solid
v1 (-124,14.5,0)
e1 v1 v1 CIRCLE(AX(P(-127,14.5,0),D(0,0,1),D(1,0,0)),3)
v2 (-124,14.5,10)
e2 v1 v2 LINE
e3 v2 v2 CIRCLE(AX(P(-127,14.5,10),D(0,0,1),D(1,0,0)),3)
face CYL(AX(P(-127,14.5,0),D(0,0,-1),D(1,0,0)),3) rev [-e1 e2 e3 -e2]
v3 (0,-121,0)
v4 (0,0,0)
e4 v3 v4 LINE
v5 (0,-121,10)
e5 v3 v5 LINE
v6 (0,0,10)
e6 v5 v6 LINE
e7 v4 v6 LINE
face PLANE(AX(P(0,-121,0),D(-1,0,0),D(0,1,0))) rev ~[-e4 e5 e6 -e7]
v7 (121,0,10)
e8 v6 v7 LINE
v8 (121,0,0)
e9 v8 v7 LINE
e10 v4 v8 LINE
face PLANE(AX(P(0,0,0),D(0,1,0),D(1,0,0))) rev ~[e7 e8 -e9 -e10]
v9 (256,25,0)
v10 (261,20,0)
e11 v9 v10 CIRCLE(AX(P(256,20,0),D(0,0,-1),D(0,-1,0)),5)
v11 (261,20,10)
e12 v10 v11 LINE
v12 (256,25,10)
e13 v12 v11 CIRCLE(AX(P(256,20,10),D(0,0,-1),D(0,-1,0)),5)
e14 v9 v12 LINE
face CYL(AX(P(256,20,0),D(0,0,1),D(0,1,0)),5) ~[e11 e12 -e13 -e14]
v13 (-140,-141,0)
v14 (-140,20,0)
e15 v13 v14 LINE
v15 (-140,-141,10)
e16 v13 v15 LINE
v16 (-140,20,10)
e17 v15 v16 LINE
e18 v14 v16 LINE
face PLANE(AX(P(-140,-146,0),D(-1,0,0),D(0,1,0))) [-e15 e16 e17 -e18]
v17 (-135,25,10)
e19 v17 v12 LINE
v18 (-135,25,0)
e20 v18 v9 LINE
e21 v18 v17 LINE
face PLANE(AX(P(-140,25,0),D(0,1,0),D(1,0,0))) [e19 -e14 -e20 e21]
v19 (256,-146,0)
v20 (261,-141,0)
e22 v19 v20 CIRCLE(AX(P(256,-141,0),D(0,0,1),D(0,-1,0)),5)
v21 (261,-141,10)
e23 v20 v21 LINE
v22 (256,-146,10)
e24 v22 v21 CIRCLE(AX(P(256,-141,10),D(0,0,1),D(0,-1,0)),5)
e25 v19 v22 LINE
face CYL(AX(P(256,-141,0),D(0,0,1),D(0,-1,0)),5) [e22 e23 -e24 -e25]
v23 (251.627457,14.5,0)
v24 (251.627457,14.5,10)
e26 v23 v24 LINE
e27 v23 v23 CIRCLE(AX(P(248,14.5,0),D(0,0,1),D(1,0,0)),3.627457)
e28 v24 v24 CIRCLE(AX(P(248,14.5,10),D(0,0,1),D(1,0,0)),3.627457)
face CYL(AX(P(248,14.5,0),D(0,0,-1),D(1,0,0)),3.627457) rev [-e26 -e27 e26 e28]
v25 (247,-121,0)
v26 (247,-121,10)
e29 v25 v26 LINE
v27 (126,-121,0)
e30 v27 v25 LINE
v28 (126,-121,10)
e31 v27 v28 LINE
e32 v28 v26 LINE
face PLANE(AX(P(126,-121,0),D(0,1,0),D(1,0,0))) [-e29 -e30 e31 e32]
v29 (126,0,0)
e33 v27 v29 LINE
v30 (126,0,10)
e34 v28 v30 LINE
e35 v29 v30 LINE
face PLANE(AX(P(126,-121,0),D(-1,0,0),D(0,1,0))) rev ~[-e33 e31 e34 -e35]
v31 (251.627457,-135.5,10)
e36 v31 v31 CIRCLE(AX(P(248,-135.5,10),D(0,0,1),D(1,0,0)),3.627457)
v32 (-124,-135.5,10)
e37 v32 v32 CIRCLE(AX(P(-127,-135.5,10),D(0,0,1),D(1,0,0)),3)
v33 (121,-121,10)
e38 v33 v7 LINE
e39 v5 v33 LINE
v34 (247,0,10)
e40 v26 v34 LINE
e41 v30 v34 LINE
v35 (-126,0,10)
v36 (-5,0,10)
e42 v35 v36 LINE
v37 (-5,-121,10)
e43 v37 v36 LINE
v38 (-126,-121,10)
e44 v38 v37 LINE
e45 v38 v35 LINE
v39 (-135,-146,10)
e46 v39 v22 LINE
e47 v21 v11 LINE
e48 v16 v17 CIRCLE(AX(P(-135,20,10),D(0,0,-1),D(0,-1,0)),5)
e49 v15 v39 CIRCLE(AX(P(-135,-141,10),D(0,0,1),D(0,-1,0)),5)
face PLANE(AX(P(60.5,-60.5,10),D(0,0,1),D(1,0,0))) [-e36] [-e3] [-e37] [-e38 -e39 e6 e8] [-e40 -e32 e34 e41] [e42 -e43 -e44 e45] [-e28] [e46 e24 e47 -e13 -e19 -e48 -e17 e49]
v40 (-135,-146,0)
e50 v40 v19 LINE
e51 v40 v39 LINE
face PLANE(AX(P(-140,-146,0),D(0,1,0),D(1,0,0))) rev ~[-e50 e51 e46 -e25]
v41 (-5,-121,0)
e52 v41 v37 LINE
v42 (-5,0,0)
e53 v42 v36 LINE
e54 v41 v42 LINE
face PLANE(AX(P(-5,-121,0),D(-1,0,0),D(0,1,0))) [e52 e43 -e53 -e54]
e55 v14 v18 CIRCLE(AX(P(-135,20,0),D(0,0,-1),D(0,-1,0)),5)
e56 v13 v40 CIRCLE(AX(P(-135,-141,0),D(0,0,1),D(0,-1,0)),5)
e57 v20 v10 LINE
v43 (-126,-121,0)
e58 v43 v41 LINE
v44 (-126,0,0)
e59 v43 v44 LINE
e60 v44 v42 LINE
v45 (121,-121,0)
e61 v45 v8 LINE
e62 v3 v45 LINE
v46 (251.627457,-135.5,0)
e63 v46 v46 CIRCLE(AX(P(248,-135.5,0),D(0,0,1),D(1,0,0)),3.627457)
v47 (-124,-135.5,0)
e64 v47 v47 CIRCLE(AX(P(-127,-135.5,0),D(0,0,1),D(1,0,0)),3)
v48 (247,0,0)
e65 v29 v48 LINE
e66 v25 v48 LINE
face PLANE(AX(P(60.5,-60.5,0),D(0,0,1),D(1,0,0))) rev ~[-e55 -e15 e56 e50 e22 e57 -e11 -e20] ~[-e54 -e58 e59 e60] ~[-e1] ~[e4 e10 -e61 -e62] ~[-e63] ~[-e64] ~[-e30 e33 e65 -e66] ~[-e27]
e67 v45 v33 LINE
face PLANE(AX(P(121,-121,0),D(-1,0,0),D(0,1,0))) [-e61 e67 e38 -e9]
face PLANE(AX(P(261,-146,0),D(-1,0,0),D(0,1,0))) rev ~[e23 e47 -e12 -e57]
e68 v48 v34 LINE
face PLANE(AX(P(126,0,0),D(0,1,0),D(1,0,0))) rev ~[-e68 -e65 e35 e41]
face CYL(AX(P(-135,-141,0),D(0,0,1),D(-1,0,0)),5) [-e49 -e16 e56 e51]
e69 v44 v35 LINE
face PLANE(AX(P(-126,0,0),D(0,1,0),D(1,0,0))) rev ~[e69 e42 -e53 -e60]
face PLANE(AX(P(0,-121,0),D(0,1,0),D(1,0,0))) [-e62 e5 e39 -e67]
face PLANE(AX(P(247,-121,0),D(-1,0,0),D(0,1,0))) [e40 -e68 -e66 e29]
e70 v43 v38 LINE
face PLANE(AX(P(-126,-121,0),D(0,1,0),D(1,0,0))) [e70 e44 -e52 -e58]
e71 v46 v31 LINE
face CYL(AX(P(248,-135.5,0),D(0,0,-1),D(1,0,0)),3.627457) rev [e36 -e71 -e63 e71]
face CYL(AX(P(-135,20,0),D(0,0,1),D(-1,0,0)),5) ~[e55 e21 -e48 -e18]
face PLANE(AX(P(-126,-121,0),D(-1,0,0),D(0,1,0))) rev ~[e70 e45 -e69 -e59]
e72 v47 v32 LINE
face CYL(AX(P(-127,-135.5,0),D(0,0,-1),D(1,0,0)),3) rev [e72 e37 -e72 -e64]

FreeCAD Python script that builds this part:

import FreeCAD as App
import Part
import Sketcher
Q = App.Units.Quantity


def edges_at(feature, points):
    """Names of the edges that pass closest to the given points."""
    edges = feature.Shape.Edges
    near = lambda p: min(range(len(edges)), key=lambda i: edges[i].distToShape(Part.Vertex(*p))[0])
    return sorted({f"Edge{near(p) + 1}" for p in points})

doc = App.newDocument("Part")
body = doc.addObject("PartDesign::Body", "Body")

sketch1 = doc.addObject("Sketcher::SketchObject", "Sketch")
body.addObject(sketch1)
sketch1.AttachmentSupport = (doc.XY_Plane, [""])
sketch1.MapMode = "FlatFace"
sketch1.addGeometry([
    Part.LineSegment(App.Vector(-140, 25, 0), App.Vector(-140, -146, 0)),
    Part.LineSegment(App.Vector(-140, -146, 0), App.Vector(261, -146, 0)),
    Part.LineSegment(App.Vector(261, -146, 0), App.Vector(261, 25, 0)),
    Part.LineSegment(App.Vector(261, 25, 0), App.Vector(-140, 25, 0)),
    Part.Circle(App.Vector(-127, -135.5, 0), App.Vector(0, 0, 1), 3),
    Part.Circle(App.Vector(248, -135.5, 0), App.Vector(0, 0, 1), 3.6),
    Part.LineSegment(App.Vector(-5, -121, 0), App.Vector(-126, -121, 0)),
    Part.LineSegment(App.Vector(-126, -121, 0), App.Vector(-126, 0, 0)),
    Part.LineSegment(App.Vector(-126, 0, 0), App.Vector(-5, 0, 0)),
    Part.LineSegment(App.Vector(-5, 0, 0), App.Vector(-5, -121, 0)),
    Part.LineSegment(App.Vector(121, -121, 0), App.Vector(0, -121, 0)),
    Part.LineSegment(App.Vector(0, -121, 0), App.Vector(0, 0, 0)),
    Part.LineSegment(App.Vector(0, 0, 0), App.Vector(121, 0, 0)),
    Part.LineSegment(App.Vector(121, 0, 0), App.Vector(121, -121, 0)),
    Part.Circle(App.Vector(-127, 14.5, 0), App.Vector(0, 0, 1), 3),
    Part.LineSegment(App.Vector(247, -121, 0), App.Vector(126, -121, 0)),
    Part.LineSegment(App.Vector(126, -121, 0), App.Vector(126, 0, 0)),
    Part.LineSegment(App.Vector(126, 0, 0), App.Vector(247, 0, 0)),
    Part.LineSegment(App.Vector(247, 0, 0), App.Vector(247, -121, 0)),
    Part.Circle(App.Vector(248, 14.5, 0), App.Vector(0, 0, 1), 3.6),
], False)
sketch1.addConstraint([
    Sketcher.Constraint("Coincident", 0, 2, 1, 1),
    Sketcher.Constraint("Coincident", 1, 2, 2, 1),
    Sketcher.Constraint("Coincident", 2, 2, 3, 1),
    Sketcher.Constraint("Coincident", 3, 2, 0, 1),
    Sketcher.Constraint("Coincident", 6, 2, 7, 1),
    Sketcher.Constraint("Coincident", 7, 2, 8, 1),
    Sketcher.Constraint("Coincident", 8, 2, 9, 1),
    Sketcher.Constraint("Coincident", 9, 2, 6, 1),
    Sketcher.Constraint("Coincident", 10, 2, 11, 1),
    Sketcher.Constraint("Coincident", 11, 2, 12, 1),
    Sketcher.Constraint("Coincident", 12, 2, 13, 1),
    Sketcher.Constraint("Coincident", 13, 2, 10, 1),
    Sketcher.Constraint("Coincident", 15, 2, 16, 1),
    Sketcher.Constraint("Coincident", 16, 2, 17, 1),
    Sketcher.Constraint("Coincident", 17, 2, 18, 1),
    Sketcher.Constraint("Coincident", 18, 2, 15, 1),
    Sketcher.Constraint("Vertical", 0),
    Sketcher.Constraint("Horizontal", 1),
    Sketcher.Constraint("Vertical", 2),
    Sketcher.Constraint("Horizontal", 3),
    Sketcher.Constraint("Horizontal", 6),
    Sketcher.Constraint("Vertical", 7),
    Sketcher.Constraint("Horizontal", 8),
    Sketcher.Constraint("Vertical", 9),
    Sketcher.Constraint("Horizontal", 10),
    Sketcher.Constraint("Vertical", 11),
    Sketcher.Constraint("Horizontal", 12),
    Sketcher.Constraint("Vertical", 13),
    Sketcher.Constraint("Horizontal", 15),
    Sketcher.Constraint("Vertical", 16),
    Sketcher.Constraint("Horizontal", 17),
    Sketcher.Constraint("Vertical", 18),
    Sketcher.Constraint("Coincident", 11, 2, -1, 1),
    Sketcher.Constraint("Equal", 4, 14),
    Sketcher.Constraint("Equal", 5, 19),
    Sketcher.Constraint("Symmetric", 7, 2, 16, 2, -1, 1),
    Sketcher.Constraint("PointOnObject", 7, 2, -1),
    Sketcher.Constraint("Horizontal", 4, 3, 5, 3),
    Sketcher.Constraint("Horizontal", 14, 3, 19, 3),
    Sketcher.Constraint("Horizontal", 9, 2, 10, 2),
    Sketcher.Constraint("Horizontal", 13, 2, 15, 2),
    Sketcher.Constraint("Vertical", 4, 3, 14, 3),
    Sketcher.Constraint("Vertical", 5, 3, 19, 3),
    Sketcher.Constraint("Equal", 8, 10),
    Sketcher.Constraint("Equal", 12, 15),
    Sketcher.Constraint("Equal", 17, 7),
    Sketcher.Constraint("Diameter", 4, Q("6 mm")),
    Sketcher.Constraint("DistanceX", 1, 1, 1, 2, Q("401 mm")),
    Sketcher.Constraint("DistanceX", 6, 2, 6, 1, Q("121 mm")),
    Sketcher.Constraint("DistanceY", 0, 2, 0, 1, Q("171 mm")),
    Sketcher.Constraint("DistanceX", 4, 3, -1, 1, Q("127 mm")),
    Sketcher.Constraint("DistanceX", -1, 1, 5, 3, Q("248 mm")),
    Sketcher.Constraint("DistanceX", 0, 2, -1, 1, Q("140 mm")),
    Sketcher.Constraint("DistanceY", 0, 2, -1, 1, Q("146 mm")),
    Sketcher.Constraint("DistanceX", 6, 2, -1, 1, Q("126 mm")),
    Sketcher.Constraint("DistanceY", 4, 3, 14, 3, Q("150 mm")),
    Sketcher.Constraint("DistanceY", 4, 3, -1, 1, Q("135.5 mm")),
    Sketcher.Constraint("Diameter", 5, Q("7.254914 mm")),
])
pad1 = doc.addObject("PartDesign::Pad", "Pad")
body.addObject(pad1)
pad1.Profile = sketch1
pad1.Length = 10
doc.recompute()

fillet = doc.addObject("PartDesign::Fillet", "Fillet")
body.addObject(fillet)
fillet.Base = (pad1, edges_at(pad1, [
    (261, 25, 5),
    (261, -146, 5),
    (-140, -146, 5),
    (-140, 25, 5),
]))
fillet.Radius = 5

doc.recompute()
